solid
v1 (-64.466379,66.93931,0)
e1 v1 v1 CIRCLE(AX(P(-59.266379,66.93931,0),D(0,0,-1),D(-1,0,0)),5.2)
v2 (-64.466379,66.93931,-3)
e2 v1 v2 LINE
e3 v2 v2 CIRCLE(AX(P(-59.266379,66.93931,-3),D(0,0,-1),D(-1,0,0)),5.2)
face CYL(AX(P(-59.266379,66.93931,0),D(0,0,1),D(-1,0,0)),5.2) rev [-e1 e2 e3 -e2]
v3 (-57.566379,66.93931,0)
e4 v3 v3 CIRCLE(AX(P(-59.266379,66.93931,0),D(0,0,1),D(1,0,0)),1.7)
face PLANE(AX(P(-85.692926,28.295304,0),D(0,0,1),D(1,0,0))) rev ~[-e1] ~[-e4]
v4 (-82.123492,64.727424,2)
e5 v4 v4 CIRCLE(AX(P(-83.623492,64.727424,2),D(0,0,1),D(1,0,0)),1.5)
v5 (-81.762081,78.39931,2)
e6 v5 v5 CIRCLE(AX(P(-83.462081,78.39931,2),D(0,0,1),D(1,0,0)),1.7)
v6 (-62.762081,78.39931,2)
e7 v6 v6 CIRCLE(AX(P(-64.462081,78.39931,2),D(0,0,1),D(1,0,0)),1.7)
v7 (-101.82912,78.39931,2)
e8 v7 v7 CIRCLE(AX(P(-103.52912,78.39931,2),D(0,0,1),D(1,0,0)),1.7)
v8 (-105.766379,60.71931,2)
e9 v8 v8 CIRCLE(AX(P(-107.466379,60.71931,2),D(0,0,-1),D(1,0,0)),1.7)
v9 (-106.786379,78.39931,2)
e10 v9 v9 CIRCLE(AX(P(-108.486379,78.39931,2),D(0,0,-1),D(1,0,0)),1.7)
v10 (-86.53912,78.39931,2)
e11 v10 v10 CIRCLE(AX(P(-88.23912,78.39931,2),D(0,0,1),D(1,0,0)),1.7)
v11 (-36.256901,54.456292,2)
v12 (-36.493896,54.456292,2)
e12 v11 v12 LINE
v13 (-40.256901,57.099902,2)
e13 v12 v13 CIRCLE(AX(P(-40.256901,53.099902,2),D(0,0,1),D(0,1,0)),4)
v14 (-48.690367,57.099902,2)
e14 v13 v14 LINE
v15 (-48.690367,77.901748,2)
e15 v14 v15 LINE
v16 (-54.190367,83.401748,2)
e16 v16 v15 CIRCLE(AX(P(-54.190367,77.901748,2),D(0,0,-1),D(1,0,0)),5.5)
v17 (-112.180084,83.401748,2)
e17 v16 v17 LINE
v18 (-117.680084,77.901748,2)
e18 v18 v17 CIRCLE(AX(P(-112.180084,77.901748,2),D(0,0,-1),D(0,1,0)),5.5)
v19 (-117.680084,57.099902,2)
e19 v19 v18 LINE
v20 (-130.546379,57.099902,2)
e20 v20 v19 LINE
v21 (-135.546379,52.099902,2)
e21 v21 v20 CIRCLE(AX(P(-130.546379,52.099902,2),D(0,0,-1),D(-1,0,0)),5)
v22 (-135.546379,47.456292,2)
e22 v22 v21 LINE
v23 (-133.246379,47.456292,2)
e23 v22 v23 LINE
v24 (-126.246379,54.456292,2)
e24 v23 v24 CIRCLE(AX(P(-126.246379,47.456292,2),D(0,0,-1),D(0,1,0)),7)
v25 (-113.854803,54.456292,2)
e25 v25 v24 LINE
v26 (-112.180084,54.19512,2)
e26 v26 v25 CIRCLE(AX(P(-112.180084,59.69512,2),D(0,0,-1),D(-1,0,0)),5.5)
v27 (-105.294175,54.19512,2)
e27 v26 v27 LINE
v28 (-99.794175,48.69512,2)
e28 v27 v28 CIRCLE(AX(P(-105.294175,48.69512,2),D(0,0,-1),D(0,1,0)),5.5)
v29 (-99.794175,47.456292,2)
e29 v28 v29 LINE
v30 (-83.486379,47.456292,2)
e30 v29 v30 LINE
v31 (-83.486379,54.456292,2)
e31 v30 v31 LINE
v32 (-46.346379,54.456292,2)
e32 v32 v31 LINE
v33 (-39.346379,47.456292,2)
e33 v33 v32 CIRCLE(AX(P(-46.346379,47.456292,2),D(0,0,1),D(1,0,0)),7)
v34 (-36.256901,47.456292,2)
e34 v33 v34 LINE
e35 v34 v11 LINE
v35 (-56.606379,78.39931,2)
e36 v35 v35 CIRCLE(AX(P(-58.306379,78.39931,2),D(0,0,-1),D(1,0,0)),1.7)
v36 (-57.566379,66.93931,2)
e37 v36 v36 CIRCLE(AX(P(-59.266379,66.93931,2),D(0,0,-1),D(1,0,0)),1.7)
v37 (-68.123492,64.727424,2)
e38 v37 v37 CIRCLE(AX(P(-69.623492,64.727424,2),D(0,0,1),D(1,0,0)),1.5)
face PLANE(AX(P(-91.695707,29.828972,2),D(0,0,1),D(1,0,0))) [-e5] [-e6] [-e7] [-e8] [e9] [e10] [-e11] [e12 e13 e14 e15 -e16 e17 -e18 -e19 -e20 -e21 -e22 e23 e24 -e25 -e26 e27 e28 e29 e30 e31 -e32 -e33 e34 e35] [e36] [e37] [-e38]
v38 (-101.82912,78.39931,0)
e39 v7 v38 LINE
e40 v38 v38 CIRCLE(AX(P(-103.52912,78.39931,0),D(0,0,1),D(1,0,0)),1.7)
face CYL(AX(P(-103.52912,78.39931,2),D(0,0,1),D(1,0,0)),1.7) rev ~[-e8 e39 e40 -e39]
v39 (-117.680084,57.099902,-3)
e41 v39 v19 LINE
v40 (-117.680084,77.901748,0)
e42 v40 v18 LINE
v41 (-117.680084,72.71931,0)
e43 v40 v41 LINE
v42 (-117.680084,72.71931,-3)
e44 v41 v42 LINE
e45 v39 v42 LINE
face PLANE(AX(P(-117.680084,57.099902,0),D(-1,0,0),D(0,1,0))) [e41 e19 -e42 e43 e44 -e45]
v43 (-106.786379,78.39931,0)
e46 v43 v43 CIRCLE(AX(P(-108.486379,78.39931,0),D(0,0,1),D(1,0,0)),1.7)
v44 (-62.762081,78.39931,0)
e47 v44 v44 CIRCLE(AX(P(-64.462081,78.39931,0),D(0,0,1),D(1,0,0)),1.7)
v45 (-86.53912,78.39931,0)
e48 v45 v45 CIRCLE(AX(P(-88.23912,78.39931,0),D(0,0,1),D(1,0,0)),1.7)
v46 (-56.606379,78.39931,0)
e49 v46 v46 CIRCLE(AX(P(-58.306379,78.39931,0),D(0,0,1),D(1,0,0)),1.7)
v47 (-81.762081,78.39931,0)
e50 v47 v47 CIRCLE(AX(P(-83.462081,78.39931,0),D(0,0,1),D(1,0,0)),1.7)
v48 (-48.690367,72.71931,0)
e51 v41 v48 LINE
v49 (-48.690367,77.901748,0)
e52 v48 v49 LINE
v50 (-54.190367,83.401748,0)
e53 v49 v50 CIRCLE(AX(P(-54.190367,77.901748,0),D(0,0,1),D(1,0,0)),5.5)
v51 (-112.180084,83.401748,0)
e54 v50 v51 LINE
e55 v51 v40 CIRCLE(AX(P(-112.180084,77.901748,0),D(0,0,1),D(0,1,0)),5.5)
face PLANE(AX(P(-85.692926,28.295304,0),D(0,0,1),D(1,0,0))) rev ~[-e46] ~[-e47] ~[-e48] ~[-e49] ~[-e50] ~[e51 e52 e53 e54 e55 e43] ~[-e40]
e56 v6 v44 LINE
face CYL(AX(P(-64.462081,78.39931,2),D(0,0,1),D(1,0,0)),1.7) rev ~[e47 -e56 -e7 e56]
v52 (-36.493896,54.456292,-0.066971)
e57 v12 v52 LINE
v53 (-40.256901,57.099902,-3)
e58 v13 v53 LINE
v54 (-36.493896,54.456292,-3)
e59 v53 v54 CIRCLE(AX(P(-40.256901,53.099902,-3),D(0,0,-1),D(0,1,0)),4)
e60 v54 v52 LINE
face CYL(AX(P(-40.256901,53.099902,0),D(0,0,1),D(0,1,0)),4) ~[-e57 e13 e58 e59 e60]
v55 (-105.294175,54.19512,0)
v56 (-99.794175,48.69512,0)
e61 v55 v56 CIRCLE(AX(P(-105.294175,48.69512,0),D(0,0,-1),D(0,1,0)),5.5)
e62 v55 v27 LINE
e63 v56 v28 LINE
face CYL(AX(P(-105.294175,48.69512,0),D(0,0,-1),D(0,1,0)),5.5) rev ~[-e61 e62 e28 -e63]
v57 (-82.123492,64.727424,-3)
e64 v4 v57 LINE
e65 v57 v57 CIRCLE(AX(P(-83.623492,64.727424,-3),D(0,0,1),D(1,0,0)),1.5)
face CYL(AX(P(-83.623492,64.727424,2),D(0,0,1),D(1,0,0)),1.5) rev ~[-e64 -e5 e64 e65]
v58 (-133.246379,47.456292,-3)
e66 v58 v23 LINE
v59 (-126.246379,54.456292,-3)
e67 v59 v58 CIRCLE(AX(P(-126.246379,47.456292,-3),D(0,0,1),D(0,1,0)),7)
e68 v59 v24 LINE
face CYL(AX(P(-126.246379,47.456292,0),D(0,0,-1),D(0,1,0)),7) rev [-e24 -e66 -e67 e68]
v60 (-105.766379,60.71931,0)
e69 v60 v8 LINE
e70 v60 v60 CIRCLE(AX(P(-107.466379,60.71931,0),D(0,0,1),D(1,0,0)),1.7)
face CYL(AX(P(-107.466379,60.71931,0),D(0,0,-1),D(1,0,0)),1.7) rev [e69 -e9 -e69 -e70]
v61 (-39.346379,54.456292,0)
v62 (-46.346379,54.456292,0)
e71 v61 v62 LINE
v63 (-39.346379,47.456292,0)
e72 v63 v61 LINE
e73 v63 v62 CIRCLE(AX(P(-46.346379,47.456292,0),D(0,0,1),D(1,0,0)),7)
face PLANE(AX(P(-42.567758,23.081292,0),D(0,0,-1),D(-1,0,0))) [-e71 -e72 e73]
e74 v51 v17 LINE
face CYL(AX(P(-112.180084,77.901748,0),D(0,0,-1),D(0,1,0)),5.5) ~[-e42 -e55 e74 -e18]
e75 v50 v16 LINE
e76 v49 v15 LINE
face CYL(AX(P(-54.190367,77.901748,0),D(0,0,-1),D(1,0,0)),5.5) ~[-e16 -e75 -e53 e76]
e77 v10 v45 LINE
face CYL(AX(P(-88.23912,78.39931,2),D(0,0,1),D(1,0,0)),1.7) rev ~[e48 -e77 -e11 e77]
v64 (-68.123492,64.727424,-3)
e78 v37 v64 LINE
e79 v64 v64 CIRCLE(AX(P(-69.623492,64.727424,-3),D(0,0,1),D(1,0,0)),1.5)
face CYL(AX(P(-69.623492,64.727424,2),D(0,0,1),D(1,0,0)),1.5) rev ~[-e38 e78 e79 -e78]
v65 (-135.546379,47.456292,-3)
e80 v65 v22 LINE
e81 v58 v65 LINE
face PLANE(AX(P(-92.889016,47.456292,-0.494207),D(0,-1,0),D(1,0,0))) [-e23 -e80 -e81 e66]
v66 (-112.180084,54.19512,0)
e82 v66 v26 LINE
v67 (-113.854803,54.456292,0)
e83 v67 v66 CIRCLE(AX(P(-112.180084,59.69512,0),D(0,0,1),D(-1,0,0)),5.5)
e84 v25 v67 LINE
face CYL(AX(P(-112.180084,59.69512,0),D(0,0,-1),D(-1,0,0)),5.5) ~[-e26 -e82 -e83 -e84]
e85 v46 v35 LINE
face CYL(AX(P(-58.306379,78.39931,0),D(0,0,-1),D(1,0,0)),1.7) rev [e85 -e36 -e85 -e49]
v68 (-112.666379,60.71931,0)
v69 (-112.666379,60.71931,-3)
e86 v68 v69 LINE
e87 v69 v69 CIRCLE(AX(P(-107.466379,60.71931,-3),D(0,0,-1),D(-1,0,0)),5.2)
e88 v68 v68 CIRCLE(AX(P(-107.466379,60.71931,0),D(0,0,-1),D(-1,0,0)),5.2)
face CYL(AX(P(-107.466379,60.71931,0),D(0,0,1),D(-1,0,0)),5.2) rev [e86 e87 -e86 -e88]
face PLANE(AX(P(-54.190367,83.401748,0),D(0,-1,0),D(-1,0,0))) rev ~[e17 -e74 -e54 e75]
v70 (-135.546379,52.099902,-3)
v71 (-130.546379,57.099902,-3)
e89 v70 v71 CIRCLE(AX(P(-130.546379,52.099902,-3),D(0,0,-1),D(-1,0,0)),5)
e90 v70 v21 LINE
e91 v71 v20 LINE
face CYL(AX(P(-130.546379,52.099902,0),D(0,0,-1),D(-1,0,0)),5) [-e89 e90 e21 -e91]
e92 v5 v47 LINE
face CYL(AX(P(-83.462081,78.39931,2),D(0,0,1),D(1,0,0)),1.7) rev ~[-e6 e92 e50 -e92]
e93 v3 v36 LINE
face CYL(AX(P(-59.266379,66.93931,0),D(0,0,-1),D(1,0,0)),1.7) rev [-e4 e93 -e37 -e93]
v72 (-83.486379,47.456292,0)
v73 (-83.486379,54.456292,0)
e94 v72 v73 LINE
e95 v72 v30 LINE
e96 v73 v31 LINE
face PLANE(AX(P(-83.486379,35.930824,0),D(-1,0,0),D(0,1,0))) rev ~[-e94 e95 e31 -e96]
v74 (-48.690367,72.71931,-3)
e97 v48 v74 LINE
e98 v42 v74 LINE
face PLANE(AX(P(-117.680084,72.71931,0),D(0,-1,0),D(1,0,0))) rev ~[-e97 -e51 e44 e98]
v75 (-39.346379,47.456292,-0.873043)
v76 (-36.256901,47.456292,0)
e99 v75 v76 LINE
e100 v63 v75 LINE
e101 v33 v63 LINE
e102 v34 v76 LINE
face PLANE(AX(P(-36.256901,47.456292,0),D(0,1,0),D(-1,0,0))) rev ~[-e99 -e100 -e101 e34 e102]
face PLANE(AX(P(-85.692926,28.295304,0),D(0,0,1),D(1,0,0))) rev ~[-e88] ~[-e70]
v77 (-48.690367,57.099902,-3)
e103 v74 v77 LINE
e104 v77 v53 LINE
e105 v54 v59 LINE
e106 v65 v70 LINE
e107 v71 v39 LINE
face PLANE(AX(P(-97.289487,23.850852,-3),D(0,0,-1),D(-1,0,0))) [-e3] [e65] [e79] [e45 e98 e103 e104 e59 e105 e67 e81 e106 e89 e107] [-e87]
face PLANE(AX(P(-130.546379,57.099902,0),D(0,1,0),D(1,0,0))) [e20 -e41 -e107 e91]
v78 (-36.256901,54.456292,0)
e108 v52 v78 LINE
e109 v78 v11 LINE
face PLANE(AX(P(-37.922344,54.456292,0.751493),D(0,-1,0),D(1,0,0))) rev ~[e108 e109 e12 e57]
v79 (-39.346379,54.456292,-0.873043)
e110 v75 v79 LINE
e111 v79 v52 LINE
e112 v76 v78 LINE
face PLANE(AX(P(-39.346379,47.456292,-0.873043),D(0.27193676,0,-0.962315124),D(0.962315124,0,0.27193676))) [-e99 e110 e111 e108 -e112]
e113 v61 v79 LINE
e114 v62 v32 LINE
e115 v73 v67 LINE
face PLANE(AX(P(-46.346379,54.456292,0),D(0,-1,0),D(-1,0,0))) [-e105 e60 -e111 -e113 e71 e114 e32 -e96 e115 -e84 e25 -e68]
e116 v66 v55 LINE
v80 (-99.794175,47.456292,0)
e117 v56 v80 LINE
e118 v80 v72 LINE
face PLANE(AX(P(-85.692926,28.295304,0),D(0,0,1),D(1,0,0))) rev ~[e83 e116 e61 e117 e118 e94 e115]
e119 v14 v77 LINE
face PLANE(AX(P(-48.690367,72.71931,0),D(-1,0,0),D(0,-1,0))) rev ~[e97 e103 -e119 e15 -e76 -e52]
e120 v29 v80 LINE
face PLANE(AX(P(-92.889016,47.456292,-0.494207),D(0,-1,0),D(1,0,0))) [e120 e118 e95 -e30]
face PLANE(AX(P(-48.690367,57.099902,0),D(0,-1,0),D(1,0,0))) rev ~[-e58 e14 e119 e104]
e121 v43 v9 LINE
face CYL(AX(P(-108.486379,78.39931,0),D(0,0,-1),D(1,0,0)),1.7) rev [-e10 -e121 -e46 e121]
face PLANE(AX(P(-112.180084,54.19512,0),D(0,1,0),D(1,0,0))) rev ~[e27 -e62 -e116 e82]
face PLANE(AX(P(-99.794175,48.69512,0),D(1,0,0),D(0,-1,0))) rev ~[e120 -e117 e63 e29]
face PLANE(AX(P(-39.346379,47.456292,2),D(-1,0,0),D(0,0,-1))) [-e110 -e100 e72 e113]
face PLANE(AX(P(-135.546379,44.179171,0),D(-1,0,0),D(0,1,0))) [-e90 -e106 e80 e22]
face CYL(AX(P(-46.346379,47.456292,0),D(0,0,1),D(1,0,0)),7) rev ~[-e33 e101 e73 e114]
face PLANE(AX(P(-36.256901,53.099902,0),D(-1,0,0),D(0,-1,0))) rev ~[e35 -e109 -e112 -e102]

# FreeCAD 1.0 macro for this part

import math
import FreeCAD as App
import Part
import Sketcher

doc = App.newDocument("Part")
body = doc.addObject("PartDesign::Body", "Body")

# Sketch on XY plane
sketch1 = body.newObject("Sketcher::SketchObject", "Sketch")
sketch1.AttachmentSupport = (doc.getObject("XY_Plane"), [""])
sketch1.MapMode = "FlatFace"
sketch1.addGeometry(Part.ArcOfCircle(Part.Circle(App.Vector(-112.2, 59.7, 0), App.Vector(0, 0, 1), 5.5), math.radians(180), math.radians(270)), False)
sketch1.addGeometry(Part.LineSegment(App.Vector(-112.2, 54.2, 0), App.Vector(-105.3, 54.2, 0)), False)
sketch1.addGeometry(Part.ArcOfCircle(Part.Circle(App.Vector(-105.3, 48.7, 0), App.Vector(0, 0, 1), 5.5), math.radians(0), math.radians(90)), False)
sketch1.addGeometry(Part.LineSegment(App.Vector(-99.8, 48.7, 0), App.Vector(-99.8, 35.9, 0)), False)
sketch1.addGeometry(Part.ArcOfCircle(Part.Circle(App.Vector(-105.3, 35.9, 0), App.Vector(0, 0, 1), 5.5), math.radians(-90), math.radians(0)), False)
sketch1.addGeometry(Part.LineSegment(App.Vector(-105.3, 30.4, 0), App.Vector(-112.2, 30.4, 0)), False)
sketch1.addGeometry(Part.ArcOfCircle(Part.Circle(App.Vector(-112.2, 24.9, 0), App.Vector(0, 0, 1), 5.5), math.radians(90), math.radians(180)), False)
sketch1.addGeometry(Part.LineSegment(App.Vector(-117.7, 24.9, 0), App.Vector(-117.7, 23.9, 0)), False)
sketch1.addGeometry(Part.ArcOfCircle(Part.Circle(App.Vector(-112.2, 23.9, 0), App.Vector(0, 0, 1), 5.5), math.radians(180), math.radians(270)), False)
sketch1.addGeometry(Part.LineSegment(App.Vector(-112.2, 18.4, 0), App.Vector(-105.3, 18.4, 0)), False)
sketch1.addGeometry(Part.ArcOfCircle(Part.Circle(App.Vector(-105.3, 12.9, 0), App.Vector(0, 0, 1), 5.5), math.radians(0), math.radians(90)), False)
sketch1.addGeometry(Part.LineSegment(App.Vector(-99.8, 12.9, 0), App.Vector(-99.8, 1.7, 0)), False)
sketch1.addGeometry(Part.ArcOfCircle(Part.Circle(App.Vector(-105.3, 1.7, 0), App.Vector(0, 0, 1), 5.5), math.radians(-90), math.radians(0)), False)
sketch1.addGeometry(Part.LineSegment(App.Vector(-105.3, -3.8, 0), App.Vector(-113.4, -3.8, 0)), False)
sketch1.addGeometry(Part.ArcOfCircle(Part.Circle(App.Vector(-113.4, -9.3, 0), App.Vector(0, 0, 1), 5.5), math.radians(90), math.radians(180)), False)
sketch1.addGeometry(Part.LineSegment(App.Vector(-118.9, -9.3, 0), App.Vector(-118.9, -18.4, 0)), False)
sketch1.addGeometry(Part.ArcOfCircle(Part.Circle(App.Vector(-113.4, -18.4, 0), App.Vector(0, 0, 1), 5.5), math.radians(180), math.radians(270)), False)
sketch1.addGeometry(Part.LineSegment(App.Vector(-113.4, -23.9, 0), App.Vector(-52.9, -23.9, 0)), False)
sketch1.addGeometry(Part.ArcOfCircle(Part.Circle(App.Vector(-52.9, -18.4, 0), App.Vector(0, 0, 1), 5.5), math.radians(-90), math.radians(0)), False)
sketch1.addGeometry(Part.LineSegment(App.Vector(-47.4, -18.4, 0), App.Vector(-47.4, -9.3, 0)), False)
sketch1.addGeometry(Part.ArcOfCircle(Part.Circle(App.Vector(-52.9, -9.3, 0), App.Vector(0, 0, 1), 5.5), math.radians(0), math.radians(90)), False)
sketch1.addGeometry(Part.LineSegment(App.Vector(-52.9, -3.8, 0), App.Vector(-78, -3.8, 0)), False)
sketch1.addGeometry(Part.ArcOfCircle(Part.Circle(App.Vector(-78, 1.7, 0), App.Vector(0, 0, 1), 5.5), math.radians(180), math.radians(270)), False)
sketch1.addGeometry(Part.LineSegment(App.Vector(-83.5, 1.7, 0), App.Vector(-83.5, 12.9, 0)), False)
sketch1.addGeometry(Part.ArcOfCircle(Part.Circle(App.Vector(-78, 12.9, 0), App.Vector(0, 0, 1), 5.5), math.radians(90), math.radians(180)), False)
sketch1.addGeometry(Part.LineSegment(App.Vector(-78, 18.4, 0), App.Vector(-69.9, 18.4, 0)), False)
sketch1.addGeometry(Part.ArcOfCircle(Part.Circle(App.Vector(-69.9, 23.9, 0), App.Vector(0, 0, 1), 5.5), math.radians(-90), math.radians(0)), False)
sketch1.addGeometry(Part.LineSegment(App.Vector(-64.4, 23.9, 0), App.Vector(-64.4, 24.9, 0)), False)
sketch1.addGeometry(Part.ArcOfCircle(Part.Circle(App.Vector(-69.9, 24.9, 0), App.Vector(0, 0, 1), 5.5), math.radians(0), math.radians(90)), False)
sketch1.addGeometry(Part.LineSegment(App.Vector(-69.9, 30.4, 0), App.Vector(-78, 30.4, 0)), False)
sketch1.addGeometry(Part.ArcOfCircle(Part.Circle(App.Vector(-78, 35.9, 0), App.Vector(0, 0, 1), 5.5), math.radians(180), math.radians(270)), False)
sketch1.addGeometry(Part.LineSegment(App.Vector(-83.5, 35.9, 0), App.Vector(-83.5, 55.2, 0)), False)
sketch1.addGeometry(Part.ArcOfCircle(Part.Circle(App.Vector(-78, 55.2, 0), App.Vector(0, 0, 1), 5.5), math.radians(90), math.radians(180)), False)
sketch1.addGeometry(Part.LineSegment(App.Vector(-78, 60.7, 0), App.Vector(-54.2, 60.7, 0)), False)
sketch1.addGeometry(Part.ArcOfCircle(Part.Circle(App.Vector(-54.2, 66.2, 0), App.Vector(0, 0, 1), 5.5), math.radians(-90), math.radians(0)), False)
sketch1.addGeometry(Part.LineSegment(App.Vector(-48.7, 66.2, 0), App.Vector(-48.7, 77.9, 0)), False)
sketch1.addGeometry(Part.ArcOfCircle(Part.Circle(App.Vector(-54.2, 77.9, 0), App.Vector(0, 0, 1), 5.5), math.radians(0), math.radians(90)), False)
sketch1.addGeometry(Part.LineSegment(App.Vector(-54.2, 83.4, 0), App.Vector(-112.2, 83.4, 0)), False)
sketch1.addGeometry(Part.ArcOfCircle(Part.Circle(App.Vector(-112.2, 77.9, 0), App.Vector(0, 0, 1), 5.5), math.radians(90), math.radians(180)), False)
sketch1.addGeometry(Part.LineSegment(App.Vector(-117.7, 77.9, 0), App.Vector(-117.7, 59.7, 0)), False)
sketch1.addGeometry(Part.Circle(App.Vector(-107.5, -14.5, 0), App.Vector(0, 0, 1), 1.7), False)
sketch1.addGeometry(Part.LineSegment(App.Vector(-70.1, 21.5, 0), App.Vector(-111.4, 21.5, 0)), False)
sketch1.addGeometry(Part.ArcOfCircle(Part.Circle(App.Vector(-111.4, 23.5, 0), App.Vector(0, 0, 1), 2), math.radians(180), math.radians(270)), False)
sketch1.addGeometry(Part.LineSegment(App.Vector(-113.4, 23.5, 0), App.Vector(-113.4, 24.8, 0)), False)
sketch1.addGeometry(Part.ArcOfCircle(Part.Circle(App.Vector(-111.4, 24.8, 0), App.Vector(0, 0, 1), 2), math.radians(90), math.radians(180)), False)
sketch1.addGeometry(Part.LineSegment(App.Vector(-111.4, 26.8, 0), App.Vector(-70.1, 26.8, 0)), False)
sketch1.addGeometry(Part.ArcOfCircle(Part.Circle(App.Vector(-70.1, 24.8, 0), App.Vector(0, 0, 1), 2), math.radians(0), math.radians(90)), False)
sketch1.addGeometry(Part.LineSegment(App.Vector(-68.1, 24.8, 0), App.Vector(-68.1, 23.5, 0)), False)
sketch1.addGeometry(Part.ArcOfCircle(Part.Circle(App.Vector(-70.1, 23.5, 0), App.Vector(0, 0, 1), 2), math.radians(-90), math.radians(0)), False)
sketch1.addGeometry(Part.Circle(App.Vector(-59.3, -15.7, 0), App.Vector(0, 0, 1), 1.7), False)
sketch1.addGeometry(Part.Circle(App.Vector(-91.9, 36.7, 0), App.Vector(0, 0, 1), 1.7), False)
sketch1.addGeometry(Part.Circle(App.Vector(-107.5, 60.7, 0), App.Vector(0, 0, 1), 1.7), False)
sketch1.addGeometry(Part.Circle(App.Vector(-108.5, 78.4, 0), App.Vector(0, 0, 1), 1.7), False)
sketch1.addGeometry(Part.Circle(App.Vector(-59.3, 66.9, 0), App.Vector(0, 0, 1), 1.7), False)
sketch1.addGeometry(Part.Circle(App.Vector(-58.3, 78.4, 0), App.Vector(0, 0, 1), 1.7), False)
sketch1.addConstraint(Sketcher.Constraint("Tangent", 0, 2, 1, 1))
sketch1.addConstraint(Sketcher.Constraint("Tangent", 1, 2, 2, 2))
sketch1.addConstraint(Sketcher.Constraint("Tangent", 2, 1, 3, 1))
sketch1.addConstraint(Sketcher.Constraint("Tangent", 3, 2, 4, 2))
sketch1.addConstraint(Sketcher.Constraint("Tangent", 4, 1, 5, 1))
sketch1.addConstraint(Sketcher.Constraint("Tangent", 5, 2, 6, 1))
sketch1.addConstraint(Sketcher.Constraint("Tangent", 6, 2, 7, 1))
sketch1.addConstraint(Sketcher.Constraint("Tangent", 7, 2, 8, 1))
sketch1.addConstraint(Sketcher.Constraint("Tangent", 8, 2, 9, 1))
sketch1.addConstraint(Sketcher.Constraint("Tangent", 9, 2, 10, 2))
sketch1.addConstraint(Sketcher.Constraint("Tangent", 10, 1, 11, 1))
sketch1.addConstraint(Sketcher.Constraint("Tangent", 11, 2, 12, 2))
sketch1.addConstraint(Sketcher.Constraint("Tangent", 12, 1, 13, 1))
sketch1.addConstraint(Sketcher.Constraint("Tangent", 13, 2, 14, 1))
sketch1.addConstraint(Sketcher.Constraint("Tangent", 14, 2, 15, 1))
sketch1.addConstraint(Sketcher.Constraint("Tangent", 15, 2, 16, 1))
sketch1.addConstraint(Sketcher.Constraint("Tangent", 16, 2, 17, 1))
sketch1.addConstraint(Sketcher.Constraint("Tangent", 17, 2, 18, 1))
sketch1.addConstraint(Sketcher.Constraint("Tangent", 18, 2, 19, 1))
sketch1.addConstraint(Sketcher.Constraint("Tangent", 19, 2, 20, 1))
sketch1.addConstraint(Sketcher.Constraint("Tangent", 20, 2, 21, 1))
sketch1.addConstraint(Sketcher.Constraint("Tangent", 21, 2, 22, 2))
sketch1.addConstraint(Sketcher.Constraint("Tangent", 22, 1, 23, 1))
sketch1.addConstraint(Sketcher.Constraint("Tangent", 23, 2, 24, 2))
sketch1.addConstraint(Sketcher.Constraint("Tangent", 24, 1, 25, 1))
sketch1.addConstraint(Sketcher.Constraint("Tangent", 25, 2, 26, 1))
sketch1.addConstraint(Sketcher.Constraint("Tangent", 26, 2, 27, 1))
sketch1.addConstraint(Sketcher.Constraint("Tangent", 27, 2, 28, 1))
sketch1.addConstraint(Sketcher.Constraint("Tangent", 28, 2, 29, 1))
sketch1.addConstraint(Sketcher.Constraint("Tangent", 29, 2, 30, 2))
sketch1.addConstraint(Sketcher.Constraint("Tangent", 30, 1, 31, 1))
sketch1.addConstraint(Sketcher.Constraint("Tangent", 31, 2, 32, 2))
sketch1.addConstraint(Sketcher.Constraint("Tangent", 32, 1, 33, 1))
sketch1.addConstraint(Sketcher.Constraint("Tangent", 33, 2, 34, 1))
sketch1.addConstraint(Sketcher.Constraint("Tangent", 34, 2, 35, 1))
sketch1.addConstraint(Sketcher.Constraint("Tangent", 35, 2, 36, 1))
sketch1.addConstraint(Sketcher.Constraint("Tangent", 36, 2, 37, 1))
sketch1.addConstraint(Sketcher.Constraint("Tangent", 37, 2, 38, 1))
sketch1.addConstraint(Sketcher.Constraint("Tangent", 38, 2, 39, 1))
sketch1.addConstraint(Sketcher.Constraint("Tangent", 39, 2, 0, 1))
sketch1.addConstraint(Sketcher.Constraint("Tangent", 41, 2, 42, 2))
sketch1.addConstraint(Sketcher.Constraint("Tangent", 42, 1, 43, 1))
sketch1.addConstraint(Sketcher.Constraint("Tangent", 43, 2, 44, 2))
sketch1.addConstraint(Sketcher.Constraint("Tangent", 44, 1, 45, 1))
sketch1.addConstraint(Sketcher.Constraint("Tangent", 45, 2, 46, 2))
sketch1.addConstraint(Sketcher.Constraint("Tangent", 46, 1, 47, 1))
sketch1.addConstraint(Sketcher.Constraint("Tangent", 47, 2, 48, 2))
sketch1.addConstraint(Sketcher.Constraint("Tangent", 48, 1, 41, 1))
sketch1.addConstraint(Sketcher.Constraint("Horizontal", 1))
sketch1.addConstraint(Sketcher.Constraint("Vertical", 3))
sketch1.addConstraint(Sketcher.Constraint("Horizontal", 5))
sketch1.addConstraint(Sketcher.Constraint("Vertical", 7))
sketch1.addConstraint(Sketcher.Constraint("Horizontal", 9))
sketch1.addConstraint(Sketcher.Constraint("Vertical", 11))
sketch1.addConstraint(Sketcher.Constraint("Horizontal", 13))
sketch1.addConstraint(Sketcher.Constraint("Vertical", 15))
sketch1.addConstraint(Sketcher.Constraint("Horizontal", 17))
sketch1.addConstraint(Sketcher.Constraint("Vertical", 19))
sketch1.addConstraint(Sketcher.Constraint("Horizontal", 21))
sketch1.addConstraint(Sketcher.Constraint("Vertical", 23))
sketch1.addConstraint(Sketcher.Constraint("Horizontal", 25))
sketch1.addConstraint(Sketcher.Constraint("Vertical", 27))
sketch1.addConstraint(Sketcher.Constraint("Horizontal", 29))
sketch1.addConstraint(Sketcher.Constraint("Vertical", 31))
sketch1.addConstraint(Sketcher.Constraint("Horizontal", 33))
sketch1.addConstraint(Sketcher.Constraint("Vertical", 35))
sketch1.addConstraint(Sketcher.Constraint("Horizontal", 37))
sketch1.addConstraint(Sketcher.Constraint("Vertical", 39))
sketch1.addConstraint(Sketcher.Constraint("Horizontal", 41))
sketch1.addConstraint(Sketcher.Constraint("Vertical", 43))
sketch1.addConstraint(Sketcher.Constraint("Horizontal", 45))
sketch1.addConstraint(Sketcher.Constraint("Vertical", 47))
sketch1.addConstraint(Sketcher.Constraint("Equal", 0, 2))
sketch1.addConstraint(Sketcher.Constraint("Equal", 2, 4))
sketch1.addConstraint(Sketcher.Constraint("Equal", 4, 6))
sketch1.addConstraint(Sketcher.Constraint("Equal", 6, 8))
sketch1.addConstraint(Sketcher.Constraint("Equal", 8, 10))
sketch1.addConstraint(Sketcher.Constraint("Equal", 10, 12))
sketch1.addConstraint(Sketcher.Constraint("Equal", 12, 14))
sketch1.addConstraint(Sketcher.Constraint("Equal", 14, 16))
sketch1.addConstraint(Sketcher.Constraint("Equal", 16, 18))
sketch1.addConstraint(Sketcher.Constraint("Equal", 18, 20))
sketch1.addConstraint(Sketcher.Constraint("Equal", 20, 22))
sketch1.addConstraint(Sketcher.Constraint("Equal", 22, 24))
sketch1.addConstraint(Sketcher.Constraint("Equal", 24, 26))
sketch1.addConstraint(Sketcher.Constraint("Equal", 26, 28))
sketch1.addConstraint(Sketcher.Constraint("Equal", 28, 30))
sketch1.addConstraint(Sketcher.Constraint("Equal", 30, 32))
sketch1.addConstraint(Sketcher.Constraint("Equal", 32, 34))
sketch1.addConstraint(Sketcher.Constraint("Equal", 34, 36))
sketch1.addConstraint(Sketcher.Constraint("Equal", 36, 38))
sketch1.addConstraint(Sketcher.Constraint("Equal", 42, 44))
sketch1.addConstraint(Sketcher.Constraint("Equal", 44, 46))
sketch1.addConstraint(Sketcher.Constraint("Equal", 46, 48))
sketch1.addConstraint(Sketcher.Constraint("Equal", 40, 49))
sketch1.addConstraint(Sketcher.Constraint("Equal", 49, 50))
sketch1.addConstraint(Sketcher.Constraint("Equal", 50, 51))
sketch1.addConstraint(Sketcher.Constraint("Equal", 51, 52))
sketch1.addConstraint(Sketcher.Constraint("Equal", 52, 53))
sketch1.addConstraint(Sketcher.Constraint("Equal", 53, 54))
sketch1.addConstraint(Sketcher.Constraint("Horizontal", 14, 3, 20, 3))
sketch1.addConstraint(Sketcher.Constraint("Horizontal", 10, 3, 24, 3))
sketch1.addConstraint(Sketcher.Constraint("Horizontal", 6, 3, 28, 3))
sketch1.addConstraint(Sketcher.Constraint("Horizontal", 52, 3, 54, 3))
sketch1.addConstraint(Sketcher.Constraint("Horizontal", 51, 3, 32, 1))
sketch1.addConstraint(Sketcher.Constraint("Vertical", 0, 3, 6, 3))
sketch1.addConstraint(Sketcher.Constraint("Vertical", 4, 3, 10, 3))
sketch1.addConstraint(Sketcher.Constraint("Vertical", 24, 3, 30, 3))
sketch1.addConstraint(Sketcher.Constraint("Vertical", 40, 3, 51, 3))
sketch1.addConstraint(Sketcher.Constraint("Vertical", 49, 3, 53, 3))
sketch1.addConstraint(Sketcher.Constraint("Vertical", 16, 2, 42, 1))
sketch1.addConstraint(Sketcher.Constraint("Radius", 42, 2.0))
sketch1.addConstraint(Sketcher.Constraint("Diameter", 40, 3.4))
sketch1.addConstraint(Sketcher.Constraint("Radius", 0, 5.5))
sketch1.addConstraint(Sketcher.Constraint("DistanceX", 25, 1, 25, 2, 8.13))
sketch1.addConstraint(Sketcher.Constraint("DistanceY", 11, 2, 11, 1, 11.217799))
sketch1.addConstraint(Sketcher.Constraint("DistanceX", 1, 1, 1, 2, 6.885909))
sketch1.addConstraint(Sketcher.Constraint("DistanceY", 35, 1, 35, 2, 11.682438))
sketch1.addConstraint(Sketcher.Constraint("DistanceY", 39, 2, 39, 1, 18.206628))
sketch1.addConstraint(Sketcher.Constraint("DistanceX", 14, 3, -1, 1, 113.390601))
sketch1.addConstraint(Sketcher.Constraint("DistanceX", 13, 2, 13, 1, 8.096426))
sketch1.addConstraint(Sketcher.Constraint("DistanceX", 17, 1, 17, 2, 60.524057))
sketch1.addConstraint(Sketcher.Constraint("DistanceX", 21, 2, 21, 1, 25.119834))
sketch1.addConstraint(Sketcher.Constraint("DistanceX", 33, 1, 33, 2, 23.796012))
sketch1.addConstraint(Sketcher.Constraint("DistanceX", 41, 2, 41, 1, 41.304222))
sketch1.addConstraint(Sketcher.Constraint("DistanceY", 3, 2, 3, 1, 12.764296))
sketch1.addConstraint(Sketcher.Constraint("DistanceY", 7, 2, 7, 1, 1.020816))
sketch1.addConstraint(Sketcher.Constraint("DistanceY", 15, 2, 15, 1, 9.114176))
sketch1.addConstraint(Sketcher.Constraint("DistanceY", 43, 1, 43, 2, 1.382455))
sketch1.addConstraint(Sketcher.Constraint("DistanceY", -1, 1, 0, 3, 59.69512))
sketch1.addConstraint(Sketcher.Constraint("DistanceX", 40, 3, -1, 1, 107.466379))
sketch1.addConstraint(Sketcher.Constraint("DistanceY", 40, 3, -1, 1, 14.52069))
sketch1.addConstraint(Sketcher.Constraint("DistanceY", -1, 1, 44, 3, 24.84252))
sketch1.addConstraint(Sketcher.Constraint("DistanceX", 49, 3, -1, 1, 59.266379))
sketch1.addConstraint(Sketcher.Constraint("DistanceX", 50, 3, -1, 1, 91.856379))
sketch1.addConstraint(Sketcher.Constraint("DistanceY", -1, 1, 50, 3, 36.71931))
sketch1.addConstraint(Sketcher.Constraint("DistanceX", 52, 3, -1, 1, 108.486379))
sketch1.addConstraint(Sketcher.Constraint("DistanceY", -1, 1, 52, 3, 78.39931))
sketch1.addConstraint(Sketcher.Constraint("DistanceY", -1, 1, 53, 3, 66.93931))
sketch1.addConstraint(Sketcher.Constraint("DistanceX", 54, 3, -1, 1, 58.306379))
sketch1.addConstraint(Sketcher.Constraint("DistanceY", 49, 3, -1, 1, 15.663708))
pad1 = body.newObject("PartDesign::Pad", "Pad")
pad1.Profile = sketch1
pad1.Length = 3

# Sketch on XY plane
sketch2 = body.newObject("Sketcher::SketchObject", "Sketch001")
sketch2.AttachmentSupport = (doc.getObject("XY_Plane"), [""])
sketch2.MapMode = "FlatFace"
sketch2.addGeometry(Part.LineSegment(App.Vector(-118.9, -10, 0), App.Vector(-130.6, -9.9, 0)), False)
sketch2.addGeometry(Part.ArcOfCircle(Part.Circle(App.Vector(-130.5, -4.9, 0), App.Vector(0, 0, 1), 5), math.radians(180), math.radians(270)), False)
sketch2.addGeometry(Part.LineSegment(App.Vector(-135.5, -4.9, 0), App.Vector(-135.5, 5.4, 0)), False)
sketch2.addGeometry(Part.ArcOfCircle(Part.Circle(App.Vector(-138.5, 5.4, 0), App.Vector(0, 0, 1), 3), math.radians(0), math.radians(90)), False)
sketch2.addGeometry(Part.LineSegment(App.Vector(-138.5, 8.4, 0), App.Vector(-145.8, 8.4, 0)), False)
sketch2.addGeometry(Part.ArcOfCircle(Part.Circle(App.Vector(-145.8, 11.4, 0), App.Vector(0, 0, 1), 3), math.radians(180), math.radians(270)), False)
sketch2.addGeometry(Part.LineSegment(App.Vector(-148.8, 11.4, 0), App.Vector(-148.8, 38.2, 0)), False)
sketch2.addGeometry(Part.ArcOfCircle(Part.Circle(App.Vector(-145.8, 38.2, 0), App.Vector(0, 0, 1), 3), math.radians(90), math.radians(180)), False)
sketch2.addGeometry(Part.LineSegment(App.Vector(-145.8, 41.2, 0), App.Vector(-138.5, 41.2, 0)), False)
sketch2.addGeometry(Part.ArcOfCircle(Part.Circle(App.Vector(-138.5, 44.2, 0), App.Vector(0, 0, 1), 3), math.radians(-90), math.radians(0)), False)
sketch2.addGeometry(Part.LineSegment(App.Vector(-135.5, 44.2, 0), App.Vector(-135.5, 52.1, 0)), False)
sketch2.addGeometry(Part.ArcOfCircle(Part.Circle(App.Vector(-130.5, 52.1, 0), App.Vector(0, 0, 1), 5), math.radians(90), math.radians(180)), False)
sketch2.addGeometry(Part.LineSegment(App.Vector(-130.5, 57.1, 0), App.Vector(-117.7, 57.1, 0)), False)
sketch2.addGeometry(Part.LineSegment(App.Vector(-117.7, 57.1, 0), App.Vector(-117.7, 72.7, 0)), False)
sketch2.addGeometry(Part.LineSegment(App.Vector(-117.7, 72.7, 0), App.Vector(-48.7, 72.7, 0)), False)
sketch2.addGeometry(Part.LineSegment(App.Vector(-48.7, 72.7, 0), App.Vector(-48.7, 57.1, 0)), False)
sketch2.addGeometry(Part.LineSegment(App.Vector(-48.7, 57.1, 0), App.Vector(-40.3, 57.1, 0)), False)
sketch2.addGeometry(Part.ArcOfCircle(Part.Circle(App.Vector(-40.3, 53.1, 0), App.Vector(0, 0, 1), 4), math.radians(0), math.radians(90)), False)
sketch2.addGeometry(Part.LineSegment(App.Vector(-36.3, 53.1, 0), App.Vector(-36.3, 47.5, 0)), False)
sketch2.addGeometry(Part.LineSegment(App.Vector(-36.3, 47.5, 0), App.Vector(-39.3, 47.5, 0)), False)
sketch2.addGeometry(Part.ArcOfCircle(Part.Circle(App.Vector(-46.3, 47.5, 0), App.Vector(0, 0, 1), 7), math.radians(0), math.radians(90)), False)
sketch2.addGeometry(Part.LineSegment(App.Vector(-46.3, 54.5, 0), App.Vector(-126.2, 54.5, 0)), False)
sketch2.addGeometry(Part.ArcOfCircle(Part.Circle(App.Vector(-126.2, 47.5, 0), App.Vector(0, 0, 1), 7), math.radians(90), math.radians(180)), False)
sketch2.addGeometry(Part.LineSegment(App.Vector(-133.2, 47.5, 0), App.Vector(-133.2, 41, 0)), False)
sketch2.addGeometry(Part.ArcOfCircle(Part.Circle(App.Vector(-136.2, 41, 0), App.Vector(0, 0, 1), 3), math.radians(-90), math.radians(0)), False)
sketch2.addGeometry(Part.LineSegment(App.Vector(-136.2, 38, 0), App.Vector(-142.2, 38, 0)), False)
sketch2.addGeometry(Part.ArcOfCircle(Part.Circle(App.Vector(-142.2, 35, 0), App.Vector(0, 0, 1), 3), math.radians(90), math.radians(180)), False)
sketch2.addGeometry(Part.LineSegment(App.Vector(-145.2, 35, 0), App.Vector(-145.2, 14.4, 0)), False)
sketch2.addGeometry(Part.ArcOfCircle(Part.Circle(App.Vector(-142.2, 14.4, 0), App.Vector(0, 0, 1), 3), math.radians(-180), math.radians(-90)), False)
sketch2.addGeometry(Part.LineSegment(App.Vector(-142.2, 11.4, 0), App.Vector(-136.2, 11.4, 0)), False)
sketch2.addGeometry(Part.ArcOfCircle(Part.Circle(App.Vector(-136.2, 8.4, 0), App.Vector(0, 0, 1), 3), math.radians(0), math.radians(90)), False)
sketch2.addGeometry(Part.LineSegment(App.Vector(-133.2, 8.4, 0), App.Vector(-133.2, -1.3, 0)), False)
sketch2.addGeometry(Part.ArcOfCircle(Part.Circle(App.Vector(-126.2, -1.3, 0), App.Vector(0, 0, 1), 7), math.radians(180), math.radians(270)), False)
sketch2.addGeometry(Part.LineSegment(App.Vector(-126.2, -8.3, 0), App.Vector(-46.3, -8.3, 0)), False)
sketch2.addGeometry(Part.ArcOfCircle(Part.Circle(App.Vector(-46.3, -1.3, 0), App.Vector(0, 0, 1), 7), math.radians(-90), math.radians(0)), False)
sketch2.addGeometry(Part.LineSegment(App.Vector(-39.3, -1.3, 0), App.Vector(-36.2, -1.3, 0)), False)
sketch2.addGeometry(Part.LineSegment(App.Vector(-36.2, -1.3, 0), App.Vector(-36.2, -6.6, 0)), False)
sketch2.addGeometry(Part.ArcOfCircle(Part.Circle(App.Vector(-40.2, -6.6, 0), App.Vector(0, 0, 1), 4), math.radians(-90), math.radians(0)), False)
sketch2.addGeometry(Part.LineSegment(App.Vector(-40.3, -10.6, 0), App.Vector(-47.4, -10.6, 0)), False)
sketch2.addGeometry(Part.LineSegment(App.Vector(-47.4, -10.6, 0), App.Vector(-47.4, -23.9, 0)), False)
sketch2.addGeometry(Part.LineSegment(App.Vector(-47.4, -23.9, 0), App.Vector(-118.9, -23.9, 0)), False)
sketch2.addGeometry(Part.LineSegment(App.Vector(-118.9, -23.9, 0), App.Vector(-118.9, -10, 0)), False)
sketch2.addGeometry(Part.Circle(App.Vector(-59.3, -15.7, 0), App.Vector(0, 0, 1), 5.2), False)
sketch2.addGeometry(Part.Circle(App.Vector(-107.5, -14.5, 0), App.Vector(0, 0, 1), 5.2), False)
sketch2.addGeometry(Part.Circle(App.Vector(-59.3, 66.9, 0), App.Vector(0, 0, 1), 5.2), False)
sketch2.addGeometry(Part.Circle(App.Vector(-107.5, 60.7, 0), App.Vector(0, 0, 1), 5.2), False)
sketch2.addConstraint(Sketcher.Constraint("Tangent", 0, 2, 1, 2))
sketch2.addConstraint(Sketcher.Constraint("Tangent", 1, 1, 2, 1))
sketch2.addConstraint(Sketcher.Constraint("Tangent", 2, 2, 3, 1))
sketch2.addConstraint(Sketcher.Constraint("Tangent", 3, 2, 4, 1))
sketch2.addConstraint(Sketcher.Constraint("Tangent", 4, 2, 5, 2))
sketch2.addConstraint(Sketcher.Constraint("Tangent", 5, 1, 6, 1))
sketch2.addConstraint(Sketcher.Constraint("Tangent", 6, 2, 7, 2))
sketch2.addConstraint(Sketcher.Constraint("Tangent", 7, 1, 8, 1))
sketch2.addConstraint(Sketcher.Constraint("Tangent", 8, 2, 9, 1))
sketch2.addConstraint(Sketcher.Constraint("Tangent", 9, 2, 10, 1))
sketch2.addConstraint(Sketcher.Constraint("Tangent", 10, 2, 11, 2))
sketch2.addConstraint(Sketcher.Constraint("Tangent", 11, 1, 12, 1))
sketch2.addConstraint(Sketcher.Constraint("Coincident", 12, 2, 13, 1))
sketch2.addConstraint(Sketcher.Constraint("Coincident", 13, 2, 14, 1))
sketch2.addConstraint(Sketcher.Constraint("Coincident", 14, 2, 15, 1))
sketch2.addConstraint(Sketcher.Constraint("Coincident", 15, 2, 16, 1))
sketch2.addConstraint(Sketcher.Constraint("Tangent", 16, 2, 17, 2))
sketch2.addConstraint(Sketcher.Constraint("Tangent", 17, 1, 18, 1))
sketch2.addConstraint(Sketcher.Constraint("Coincident", 18, 2, 19, 1))
sketch2.addConstraint(Sketcher.Constraint("Coincident", 19, 2, 20, 1))
sketch2.addConstraint(Sketcher.Constraint("Tangent", 20, 2, 21, 1))
sketch2.addConstraint(Sketcher.Constraint("Tangent", 21, 2, 22, 1))
sketch2.addConstraint(Sketcher.Constraint("Tangent", 22, 2, 23, 1))
sketch2.addConstraint(Sketcher.Constraint("Tangent", 23, 2, 24, 2))
sketch2.addConstraint(Sketcher.Constraint("Tangent", 24, 1, 25, 1))
sketch2.addConstraint(Sketcher.Constraint("Tangent", 25, 2, 26, 1))
sketch2.addConstraint(Sketcher.Constraint("Tangent", 26, 2, 27, 1))
sketch2.addConstraint(Sketcher.Constraint("Tangent", 27, 2, 28, 1))
sketch2.addConstraint(Sketcher.Constraint("Tangent", 28, 2, 29, 1))
sketch2.addConstraint(Sketcher.Constraint("Tangent", 29, 2, 30, 2))
sketch2.addConstraint(Sketcher.Constraint("Tangent", 30, 1, 31, 1))
sketch2.addConstraint(Sketcher.Constraint("Tangent", 31, 2, 32, 1))
sketch2.addConstraint(Sketcher.Constraint("Tangent", 32, 2, 33, 1))
sketch2.addConstraint(Sketcher.Constraint("Tangent", 33, 2, 34, 1))
sketch2.addConstraint(Sketcher.Constraint("Coincident", 34, 2, 35, 1))
sketch2.addConstraint(Sketcher.Constraint("Coincident", 35, 2, 36, 1))
sketch2.addConstraint(Sketcher.Constraint("Tangent", 36, 2, 37, 2))
sketch2.addConstraint(Sketcher.Constraint("Tangent", 37, 1, 38, 1))
sketch2.addConstraint(Sketcher.Constraint("Coincident", 38, 2, 39, 1))
sketch2.addConstraint(Sketcher.Constraint("Coincident", 39, 2, 40, 1))
sketch2.addConstraint(Sketcher.Constraint("Coincident", 40, 2, 41, 1))
sketch2.addConstraint(Sketcher.Constraint("Coincident", 41, 2, 0, 1))
sketch2.addConstraint(Sketcher.Constraint("Vertical", 2))
sketch2.addConstraint(Sketcher.Constraint("Horizontal", 4))
sketch2.addConstraint(Sketcher.Constraint("Vertical", 6))
sketch2.addConstraint(Sketcher.Constraint("Horizontal", 8))
sketch2.addConstraint(Sketcher.Constraint("Vertical", 10))
sketch2.addConstraint(Sketcher.Constraint("Horizontal", 12))
sketch2.addConstraint(Sketcher.Constraint("Vertical", 13))
sketch2.addConstraint(Sketcher.Constraint("Horizontal", 14))
sketch2.addConstraint(Sketcher.Constraint("Vertical", 15))
sketch2.addConstraint(Sketcher.Constraint("Horizontal", 16))
sketch2.addConstraint(Sketcher.Constraint("Vertical", 18))
sketch2.addConstraint(Sketcher.Constraint("Horizontal", 19))
sketch2.addConstraint(Sketcher.Constraint("Horizontal", 21))
sketch2.addConstraint(Sketcher.Constraint("Vertical", 23))
sketch2.addConstraint(Sketcher.Constraint("Horizontal", 25))
sketch2.addConstraint(Sketcher.Constraint("Vertical", 27))
sketch2.addConstraint(Sketcher.Constraint("Horizontal", 29))
sketch2.addConstraint(Sketcher.Constraint("Vertical", 31))
sketch2.addConstraint(Sketcher.Constraint("Horizontal", 33))
sketch2.addConstraint(Sketcher.Constraint("Horizontal", 35))
sketch2.addConstraint(Sketcher.Constraint("Vertical", 36))
sketch2.addConstraint(Sketcher.Constraint("Vertical", 39))
sketch2.addConstraint(Sketcher.Constraint("Horizontal", 40))
sketch2.addConstraint(Sketcher.Constraint("Vertical", 41))
sketch2.addConstraint(Sketcher.Constraint("Equal", 3, 5))
sketch2.addConstraint(Sketcher.Constraint("Equal", 5, 7))
sketch2.addConstraint(Sketcher.Constraint("Equal", 7, 9))
sketch2.addConstraint(Sketcher.Constraint("Equal", 1, 11))
sketch2.addConstraint(Sketcher.Constraint("Equal", 20, 22))
sketch2.addConstraint(Sketcher.Constraint("Equal", 9, 24))
sketch2.addConstraint(Sketcher.Constraint("Equal", 24, 26))
sketch2.addConstraint(Sketcher.Constraint("Equal", 26, 28))
sketch2.addConstraint(Sketcher.Constraint("Equal", 28, 30))
sketch2.addConstraint(Sketcher.Constraint("Equal", 22, 32))
sketch2.addConstraint(Sketcher.Constraint("Equal", 32, 34))
sketch2.addConstraint(Sketcher.Constraint("Equal", 17, 37))
sketch2.addConstraint(Sketcher.Constraint("Equal", 42, 43))
sketch2.addConstraint(Sketcher.Constraint("Equal", 43, 44))
sketch2.addConstraint(Sketcher.Constraint("Equal", 44, 45))
sketch2.addConstraint(Sketcher.Constraint("Horizontal", 12, 2, 15, 2))
sketch2.addConstraint(Sketcher.Constraint("Horizontal", 22, 3, 18, 2))
sketch2.addConstraint(Sketcher.Constraint("Horizontal", 31, 2, 34, 2))
sketch2.addConstraint(Sketcher.Constraint("Vertical", 3, 3, 9, 3))
sketch2.addConstraint(Sketcher.Constraint("Vertical", 24, 3, 30, 3))
sketch2.addConstraint(Sketcher.Constraint("Vertical", 20, 3, 34, 3))
sketch2.addConstraint(Sketcher.Constraint("Vertical", 42, 3, 44, 3))
sketch2.addConstraint(Sketcher.Constraint("Vertical", 43, 3, 45, 3))
sketch2.addConstraint(Sketcher.Constraint("Radius", 1, 5.0))
sketch2.addConstraint(Sketcher.Constraint("Radius", 3, 3.0))
sketch2.addConstraint(Sketcher.Constraint("Radius", 17, 4.0))
sketch2.addConstraint(Sketcher.Constraint("Radius", 20, 7.0))
sketch2.addConstraint(Sketcher.Constraint("Diameter", 42, 10.4))
sketch2.addConstraint(Sketcher.Constraint("DistanceX", 21, 2, 21, 1, 79.9))
sketch2.addConstraint(Sketcher.Constraint("DistanceY", 10, 1, 10, 2, 7.920732))
sketch2.addConstraint(Sketcher.Constraint("DistanceY", 18, 2, 18, 1, 5.64361))
sketch2.addConstraint(Sketcher.Constraint("DistanceY", 31, 2, 31, 1, 9.65677))
sketch2.addConstraint(Sketcher.Constraint("DistanceY", 39, 2, 39, 1, 13.337891))
sketch2.addConstraint(Sketcher.Constraint("DistanceY", 41, 1, 41, 2, 13.95246))
sketch2.addConstraint(Sketcher.Constraint("DistanceX", 17, 3, -1, 1, 40.256901))
sketch2.addConstraint(Sketcher.Constraint("DistanceX", 40, 2, -1, 1, 118.890601))
sketch2.addConstraint(Sketcher.Constraint("Distance", 38, 7.084049))
sketch2.addConstraint(Sketcher.Constraint("DistanceX", 4, 2, 4, 1, 7.206276))
sketch2.addConstraint(Sketcher.Constraint("DistanceX", 12, 1, 12, 2, 12.866294))
sketch2.addConstraint(Sketcher.Constraint("DistanceX", 14, 1, 14, 2, 68.989718))
sketch2.addConstraint(Sketcher.Constraint("DistanceX", 16, 1, 16, 2, 8.433466))
sketch2.addConstraint(Sketcher.Constraint("DistanceX", 19, 2, 19, 1, 3.089478))
sketch2.addConstraint(Sketcher.Constraint("DistanceX", 25, 2, 25, 1, 5.915883))
sketch2.addConstraint(Sketcher.Constraint("DistanceX", 35, 1, 35, 2, 3.098176))
sketch2.addConstraint(Sketcher.Constraint("DistanceX", 40, 2, 40, 1, 71.524057))
sketch2.addConstraint(Sketcher.Constraint("DistanceY", 2, 1, 2, 2, 10.295844))
sketch2.addConstraint(Sketcher.Constraint("DistanceY", 6, 1, 6, 2, 26.763548))
sketch2.addConstraint(Sketcher.Constraint("DistanceY", 13, 1, 13, 2, 15.619408))
sketch2.addConstraint(Sketcher.Constraint("DistanceY", 23, 2, 23, 1, 6.479062))
sketch2.addConstraint(Sketcher.Constraint("DistanceY", 27, 2, 27, 1, 20.614167))
sketch2.addConstraint(Sketcher.Constraint("DistanceY", 36, 2, 36, 1, 5.351716))
sketch2.addConstraint(Sketcher.Constraint("DistanceY", 1, 3, -1, 1, 4.880221))
sketch2.addConstraint(Sketcher.Constraint("DistanceX", 42, 3, -1, 1, 59.266379))
sketch2.addConstraint(Sketcher.Constraint("DistanceX", 43, 3, -1, 1, 107.466379))
sketch2.addConstraint(Sketcher.Constraint("DistanceY", 43, 3, -1, 1, 14.52069))
sketch2.addConstraint(Sketcher.Constraint("DistanceY", -1, 1, 44, 3, 66.93931))
sketch2.addConstraint(Sketcher.Constraint("DistanceY", -1, 1, 45, 3, 60.71931))
sketch2.addConstraint(Sketcher.Constraint("DistanceY", 42, 3, -1, 1, 15.663708))
pad2 = body.newObject("PartDesign::Pad", "Pad001")
pad2.Profile = sketch2
pad2.Type = "TwoLengths"
pad2.Length = 3
pad2.Length2 = 3
pad2.Reversed = True

# Sketch on XY plane
sketch3 = body.newObject("Sketcher::SketchObject", "Sketch002")
sketch3.AttachmentSupport = (doc.getObject("XY_Plane"), [""])
sketch3.MapMode = "FlatFace"
sketch3.AttachmentOffset = App.Placement(App.Vector(0, 0, 3), App.Rotation())
sketch3.addGeometry(Part.LineSegment(App.Vector(-156, 90, 0), App.Vector(-156, -30, 0)), False)
sketch3.addGeometry(Part.LineSegment(App.Vector(-156, -30, 0), App.Vector(-27, -30, 0)), False)
sketch3.addGeometry(Part.LineSegment(App.Vector(-27, -30, 0), App.Vector(-27, 90, 0)), False)
sketch3.addGeometry(Part.LineSegment(App.Vector(-27, 90, 0), App.Vector(-156, 90, 0)), False)
sketch3.addConstraint(Sketcher.Constraint("Coincident", 0, 2, 1, 1))
sketch3.addConstraint(Sketcher.Constraint("Coincident", 1, 2, 2, 1))
sketch3.addConstraint(Sketcher.Constraint("Coincident", 2, 2, 3, 1))
sketch3.addConstraint(Sketcher.Constraint("Coincident", 3, 2, 0, 1))
sketch3.addConstraint(Sketcher.Constraint("Vertical", 0))
sketch3.addConstraint(Sketcher.Constraint("Horizontal", 1))
sketch3.addConstraint(Sketcher.Constraint("Vertical", 2))
sketch3.addConstraint(Sketcher.Constraint("Horizontal", 3))
sketch3.addConstraint(Sketcher.Constraint("DistanceX", 1, 1, 1, 2, 129.390101))
sketch3.addConstraint(Sketcher.Constraint("DistanceY", 0, 2, 0, 1, 120.053414))
sketch3.addConstraint(Sketcher.Constraint("DistanceY", -1, 1, 2, 2, 89.855679))
sketch3.addConstraint(Sketcher.Constraint("DistanceX", 0, 2, -1, 1, 156.390757))
pocket1 = body.newObject("PartDesign::Pocket", "Pocket")
pocket1.Profile = sketch3
pocket1.Length = 1

# Sketch on XY plane
sketch4 = body.newObject("Sketcher::SketchObject", "Sketch003")
sketch4.AttachmentSupport = (doc.getObject("XY_Plane"), [""])
sketch4.MapMode = "FlatFace"
sketch4.AttachmentOffset = App.Placement(App.Vector(0, 0, 2), App.Rotation())
sketch4.addGeometry(Part.Circle(App.Vector(-69.6, 64.7, 0), App.Vector(0, 0, 1), 1.5), False)
sketch4.addGeometry(Part.Circle(App.Vector(-83.6, 64.7, 0), App.Vector(0, 0, 1), 1.5), False)
sketch4.addConstraint(Sketcher.Constraint("Equal", 0, 1))
sketch4.addConstraint(Sketcher.Constraint("Horizontal", 0, 3, 1, 3))
sketch4.addConstraint(Sketcher.Constraint("Diameter", 0, 3.0))
sketch4.addConstraint(Sketcher.Constraint("DistanceX", 1, 3, 0, 3, 14.0))
sketch4.addConstraint(Sketcher.Constraint("DistanceX", 0, 3, -1, 1, 69.623492))
sketch4.addConstraint(Sketcher.Constraint("DistanceY", -1, 1, 0, 3, 64.727424))
pocket2 = body.newObject("PartDesign::Pocket", "Pocket001")
pocket2.Profile = sketch4
pocket2.Length = 8

# Sketch on XY plane
sketch5 = body.newObject("Sketcher::SketchObject", "Sketch004")
sketch5.AttachmentSupport = (doc.getObject("XY_Plane"), [""])
sketch5.MapMode = "FlatFace"
sketch5.addGeometry(Part.LineSegment(App.Vector(-35, 54, 0), App.Vector(-35, -8, 0)), False)
sketch5.addGeometry(Part.LineSegment(App.Vector(-35, -8, 0), App.Vector(-50, -8, 0)), False)
sketch5.addGeometry(Part.LineSegment(App.Vector(-50, -8, 0), App.Vector(-50, 54, 0)), False)
sketch5.addGeometry(Part.LineSegment(App.Vector(-50, 54, 0), App.Vector(-35, 54, 0)), False)
sketch5.addConstraint(Sketcher.Constraint("Coincident", 0, 2, 1, 1))
sketch5.addConstraint(Sketcher.Constraint("Coincident", 1, 2, 2, 1))
sketch5.addConstraint(Sketcher.Constraint("Coincident", 2, 2, 3, 1))
sketch5.addConstraint(Sketcher.Constraint("Coincident", 3, 2, 0, 1))
sketch5.addConstraint(Sketcher.Constraint("Vertical", 0))
sketch5.addConstraint(Sketcher.Constraint("Horizontal", 1))
sketch5.addConstraint(Sketcher.Constraint("Vertical", 2))
sketch5.addConstraint(Sketcher.Constraint("Horizontal", 3))
sketch5.addConstraint(Sketcher.Constraint("DistanceY", 0, 2, 0, 1, 62.75))
sketch5.addConstraint(Sketcher.Constraint("DistanceX", 1, 2, 1, 1, 14.61068))
sketch5.addConstraint(Sketcher.Constraint("DistanceX", 0, 2, -1, 1, 35.262418))
sketch5.addConstraint(Sketcher.Constraint("DistanceY", 0, 2, -1, 1, 8.293708))
pocket3 = body.newObject("PartDesign::Pocket", "Pocket002")
pocket3.Profile = sketch5
pocket3.Length = 8

# Sketch on XZ plane
sketch6 = body.newObject("Sketcher::SketchObject", "Sketch005")
sketch6.AttachmentSupport = (doc.getObject("XZ_Plane"), [""])
sketch6.MapMode = "FlatFace"
sketch6.AttachmentOffset = App.Placement(App.Vector(0, 0, 1.293708), App.Rotation())
sketch6.addGeometry(Part.LineSegment(App.Vector(-39.3, -0.9, 0), App.Vector(-39.3, 2, 0)), False)
sketch6.addGeometry(Part.LineSegment(App.Vector(-39.3, 2, 0), App.Vector(-36.2, 2, 0)), False)
sketch6.addGeometry(Part.LineSegment(App.Vector(-36.2, 2, 0), App.Vector(-36.2, 0, 0)), False)
sketch6.addGeometry(Part.LineSegment(App.Vector(-36.2, 0, 0), App.Vector(-39.3, -0.9, 0)), False)
sketch6.addConstraint(Sketcher.Constraint("Coincident", 0, 2, 1, 1))
sketch6.addConstraint(Sketcher.Constraint("Coincident", 1, 2, 2, 1))
sketch6.addConstraint(Sketcher.Constraint("Coincident", 2, 2, 3, 1))
sketch6.addConstraint(Sketcher.Constraint("Coincident", 3, 2, 0, 1))
sketch6.addConstraint(Sketcher.Constraint("Vertical", 0))
sketch6.addConstraint(Sketcher.Constraint("Horizontal", 1))
sketch6.addConstraint(Sketcher.Constraint("Vertical", 2))
sketch6.addConstraint(Sketcher.Constraint("PointOnObject", 2, 2, -1))
sketch6.addConstraint(Sketcher.Constraint("DistanceY", 2, 2, 2, 1, 2.0))
sketch6.addConstraint(Sketcher.Constraint("DistanceX", 1, 1, 1, 2, 3.098176))
sketch6.addConstraint(Sketcher.Constraint("DistanceY", 0, 1, 0, 2, 2.886005))
sketch6.addConstraint(Sketcher.Constraint("DistanceX", 0, 2, -1, 1, 39.346379))
pad3 = body.newObject("PartDesign::Pad", "Pad002")
pad3.Profile = sketch6
pad3.Length = 7

# Sketch on XZ plane
sketch7 = body.newObject("Sketcher::SketchObject", "Sketch006")
sketch7.AttachmentSupport = (doc.getObject("XZ_Plane"), [""])
sketch7.MapMode = "FlatFace"
sketch7.AttachmentOffset = App.Placement(App.Vector(0, 0, -47.456292), App.Rotation())
sketch7.addGeometry(Part.LineSegment(App.Vector(-39.3, 2, 0), App.Vector(-39.3, -0.9, 0)), False)
sketch7.addGeometry(Part.LineSegment(App.Vector(-39.3, -0.9, 0), App.Vector(-36.3, 0, 0)), False)
sketch7.addGeometry(Part.LineSegment(App.Vector(-36.3, 0, 0), App.Vector(-36.3, 2, 0)), False)
sketch7.addGeometry(Part.LineSegment(App.Vector(-36.3, 2, 0), App.Vector(-39.3, 2, 0)), False)
sketch7.addConstraint(Sketcher.Constraint("Coincident", 0, 2, 1, 1))
sketch7.addConstraint(Sketcher.Constraint("Coincident", 1, 2, 2, 1))
sketch7.addConstraint(Sketcher.Constraint("Coincident", 2, 2, 3, 1))
sketch7.addConstraint(Sketcher.Constraint("Coincident", 3, 2, 0, 1))
sketch7.addConstraint(Sketcher.Constraint("Vertical", 0))
sketch7.addConstraint(Sketcher.Constraint("Vertical", 2))
sketch7.addConstraint(Sketcher.Constraint("Horizontal", 3))
sketch7.addConstraint(Sketcher.Constraint("PointOnObject", 1, 2, -1))
sketch7.addConstraint(Sketcher.Constraint("DistanceY", 2, 1, 2, 2, 2.0))
sketch7.addConstraint(Sketcher.Constraint("DistanceX", 1, 2, -1, 1, 36.256901))
sketch7.addConstraint(Sketcher.Constraint("DistanceX", 3, 2, 3, 1, 3.089478))
sketch7.addConstraint(Sketcher.Constraint("DistanceY", 0, 2, 0, 1, 2.873043))
pad4 = body.newObject("PartDesign::Pad", "Pad003")
pad4.Profile = sketch7
pad4.Length = 7
pad4.Reversed = True

# Sketch on XZ plane
sketch8 = body.newObject("Sketcher::SketchObject", "Sketch007")
sketch8.AttachmentSupport = (doc.getObject("XZ_Plane"), [""])
sketch8.MapMode = "FlatFace"
sketch8.AttachmentOffset = App.Placement(App.Vector(0, 0, -47.456292), App.Rotation())
sketch8.addGeometry(Part.LineSegment(App.Vector(-167, 6, 0), App.Vector(-167, -7, 0)), False)
sketch8.addGeometry(Part.LineSegment(App.Vector(-167, -7, 0), App.Vector(-18, -7, 0)), False)
sketch8.addGeometry(Part.LineSegment(App.Vector(-18, -7, 0), App.Vector(-18, 6, 0)), False)
sketch8.addGeometry(Part.LineSegment(App.Vector(-18, 6, 0), App.Vector(-167, 6, 0)), False)
sketch8.addConstraint(Sketcher.Constraint("Coincident", 0, 2, 1, 1))
sketch8.addConstraint(Sketcher.Constraint("Coincident", 1, 2, 2, 1))
sketch8.addConstraint(Sketcher.Constraint("Coincident", 2, 2, 3, 1))
sketch8.addConstraint(Sketcher.Constraint("Coincident", 3, 2, 0, 1))
sketch8.addConstraint(Sketcher.Constraint("Vertical", 0))
sketch8.addConstraint(Sketcher.Constraint("Horizontal", 1))
sketch8.addConstraint(Sketcher.Constraint("Vertical", 2))
sketch8.addConstraint(Sketcher.Constraint("Horizontal", 3))
sketch8.addConstraint(Sketcher.Constraint("DistanceX", 1, 1, 1, 2, 149.051339))
sketch8.addConstraint(Sketcher.Constraint("DistanceY", 0, 2, 0, 1, 13.366564))
sketch8.addConstraint(Sketcher.Constraint("DistanceY", 0, 2, -1, 1, 7.177489))
sketch8.addConstraint(Sketcher.Constraint("DistanceX", 0, 2, -1, 1, 167.414685))
pocket4 = body.newObject("PartDesign::Pocket", "Pocket003")
pocket4.Profile = sketch8
pocket4.Length = 80
pocket4.Reversed = True

# Sketch on XY plane
sketch9 = body.newObject("Sketcher::SketchObject", "Sketch008")
sketch9.AttachmentSupport = (doc.getObject("XY_Plane"), [""])
sketch9.MapMode = "FlatFace"
sketch9.AttachmentOffset = App.Placement(App.Vector(0, 0, 2), App.Rotation())
sketch9.addGeometry(Part.Circle(App.Vector(-103.5, 78.4, 0), App.Vector(0, 0, 1), 1.7), False)
sketch9.addGeometry(Part.Circle(App.Vector(-88.2, 78.4, 0), App.Vector(0, 0, 1), 1.7), False)
sketch9.addGeometry(Part.Circle(App.Vector(-83.5, 78.4, 0), App.Vector(0, 0, 1), 1.7), False)
sketch9.addGeometry(Part.Circle(App.Vector(-64.5, 78.4, 0), App.Vector(0, 0, 1), 1.7), False)
sketch9.addConstraint(Sketcher.Constraint("Equal", 0, 1))
sketch9.addConstraint(Sketcher.Constraint("Equal", 1, 2))
sketch9.addConstraint(Sketcher.Constraint("Equal", 2, 3))
sketch9.addConstraint(Sketcher.Constraint("Horizontal", 0, 3, 1, 3))
sketch9.addConstraint(Sketcher.Constraint("Horizontal", 1, 3, 2, 3))
sketch9.addConstraint(Sketcher.Constraint("Horizontal", 2, 3, 3, 3))
sketch9.addConstraint(Sketcher.Constraint("Diameter", 0, 3.4))
sketch9.addConstraint(Sketcher.Constraint("DistanceX", 2, 3, 3, 3, 19.0))
sketch9.addConstraint(Sketcher.Constraint("DistanceX", 0, 3, 1, 3, 15.29))
sketch9.addConstraint(Sketcher.Constraint("DistanceX", 0, 3, -1, 1, 103.52912))
sketch9.addConstraint(Sketcher.Constraint("DistanceY", -1, 1, 0, 3, 78.39931))
sketch9.addConstraint(Sketcher.Constraint("DistanceX", 2, 3, -1, 1, 83.462081))
pocket5 = body.newObject("PartDesign::Pocket", "Pocket004")
pocket5.Profile = sketch9
pocket5.Length = 15

doc.recompute()
